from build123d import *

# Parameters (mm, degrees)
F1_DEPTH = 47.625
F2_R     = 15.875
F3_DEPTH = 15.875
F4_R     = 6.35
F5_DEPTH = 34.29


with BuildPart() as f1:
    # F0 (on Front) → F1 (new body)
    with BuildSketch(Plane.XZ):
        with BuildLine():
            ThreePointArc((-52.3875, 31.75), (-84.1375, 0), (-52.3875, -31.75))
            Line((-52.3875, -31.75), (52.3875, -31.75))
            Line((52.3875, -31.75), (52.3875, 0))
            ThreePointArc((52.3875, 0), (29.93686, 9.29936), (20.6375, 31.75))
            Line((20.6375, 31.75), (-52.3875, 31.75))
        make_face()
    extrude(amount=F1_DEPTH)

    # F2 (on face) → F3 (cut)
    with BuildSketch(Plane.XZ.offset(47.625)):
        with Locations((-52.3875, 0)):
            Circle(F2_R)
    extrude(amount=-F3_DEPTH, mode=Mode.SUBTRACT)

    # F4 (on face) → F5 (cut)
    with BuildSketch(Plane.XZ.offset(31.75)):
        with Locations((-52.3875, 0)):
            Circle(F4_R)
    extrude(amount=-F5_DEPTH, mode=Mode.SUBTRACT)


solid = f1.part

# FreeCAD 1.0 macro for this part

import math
import FreeCAD as App
import Part
import Sketcher
Q = App.Units.Quantity

doc = App.newDocument("Part")
body = doc.addObject("PartDesign::Body", "Body")

# Sketch on XZ plane
sketch1 = doc.addObject("Sketcher::SketchObject", "Sketch")
body.addObject(sketch1)
sketch1.AttachmentSupport = (doc.XZ_Plane, [""])
sketch1.MapMode = "FlatFace"
sketch1.addGeometry(Part.ArcOfCircle(Part.Circle(App.Vector(-52, 0, 0), App.Vector(0, 0, 1), 32), math.radians(90), math.radians(270)), False)
sketch1.addGeometry(Part.LineSegment(App.Vector(-52, -32, 0), App.Vector(52, -32, 0)), False)
sketch1.addGeometry(Part.LineSegment(App.Vector(52, -32, 0), App.Vector(52, 0, 0)), False)
sketch1.addGeometry(Part.ArcOfCircle(Part.Circle(App.Vector(52, 32, 0), App.Vector(0, 0, 1), 32), math.radians(-180), math.radians(-90)), False)
sketch1.addGeometry(Part.LineSegment(App.Vector(21, 32, 0), App.Vector(-52, 32, 0)), False)
sketch1.addConstraint(Sketcher.Constraint("Tangent", 0, 2, 1, 1))
sketch1.addConstraint(Sketcher.Constraint("Coincident", 1, 2, 2, 1))
sketch1.addConstraint(Sketcher.Constraint("Coincident", 2, 2, 3, 2))
sketch1.addConstraint(Sketcher.Constraint("Coincident", 3, 1, 4, 1))
sketch1.addConstraint(Sketcher.Constraint("Tangent", 4, 2, 0, 1))
sketch1.addConstraint(Sketcher.Constraint("Horizontal", 1))
sketch1.addConstraint(Sketcher.Constraint("Vertical", 2))
sketch1.addConstraint(Sketcher.Constraint("Horizontal", 4))
sketch1.addConstraint(Sketcher.Constraint("Equal", 0, 3))
sketch1.addConstraint(Sketcher.Constraint("Symmetric", 1, 2, 4, 2, -1, 1))
sketch1.addConstraint(Sketcher.Constraint("PointOnObject", 2, 2, -1))
sketch1.addConstraint(Sketcher.Constraint("Vertical", 3, 3, 1, 2))
sketch1.addConstraint(Sketcher.Constraint("Radius", 0, Q("1.25 in")))
sketch1.addConstraint(Sketcher.Constraint("DistanceX", 1, 1, 1, 2, Q("4.125 in")))
pad1 = doc.addObject("PartDesign::Pad", "Pad")
body.addObject(pad1)
pad1.Profile = sketch1
pad1.Length = Q("1.875 in")

# Sketch on XZ plane
sketch2 = doc.addObject("Sketcher::SketchObject", "Sketch001")
body.addObject(sketch2)
sketch2.AttachmentSupport = (doc.XZ_Plane, [""])
sketch2.MapMode = "FlatFace"
sketch2.AttachmentOffset = App.Placement(App.Vector(0, 0, 1.875 * 25.4), App.Rotation())
sketch2.addGeometry(Part.Circle(App.Vector(-52, 0, 0), App.Vector(0, 0, 1), 16), False)
sketch2.addConstraint(Sketcher.Constraint("PointOnObject", 0, 3, -1))
sketch2.addConstraint(Sketcher.Constraint("Diameter", 0, Q("1.25 in")))
sketch2.addConstraint(Sketcher.Constraint("DistanceX", 0, 3, -1, 1, Q("2.0625 in")))
pocket1 = doc.addObject("PartDesign::Pocket", "Pocket")
body.addObject(pocket1)
pocket1.Profile = sketch2
pocket1.Length = Q("0.625 in")

# Sketch on XZ plane
sketch3 = doc.addObject("Sketcher::SketchObject", "Sketch002")
body.addObject(sketch3)
sketch3.AttachmentSupport = (doc.XZ_Plane, [""])
sketch3.MapMode = "FlatFace"
sketch3.AttachmentOffset = App.Placement(App.Vector(0, 0, 1.25 * 25.4), App.Rotation())
sketch3.addGeometry(Part.Circle(App.Vector(-52, 0, 0), App.Vector(0, 0, 1), 6), False)
sketch3.addConstraint(Sketcher.Constraint("PointOnObject", 0, 3, -1))
sketch3.addConstraint(Sketcher.Constraint("Diameter", 0, Q("0.5 in")))
sketch3.addConstraint(Sketcher.Constraint("DistanceX", 0, 3, -1, 1, Q("2.0625 in")))
pocket2 = doc.addObject("PartDesign::Pocket", "Pocket001")
body.addObject(pocket2)
pocket2.Profile = sketch3
pocket2.Length = Q("1.35 in")

doc.recompute()
